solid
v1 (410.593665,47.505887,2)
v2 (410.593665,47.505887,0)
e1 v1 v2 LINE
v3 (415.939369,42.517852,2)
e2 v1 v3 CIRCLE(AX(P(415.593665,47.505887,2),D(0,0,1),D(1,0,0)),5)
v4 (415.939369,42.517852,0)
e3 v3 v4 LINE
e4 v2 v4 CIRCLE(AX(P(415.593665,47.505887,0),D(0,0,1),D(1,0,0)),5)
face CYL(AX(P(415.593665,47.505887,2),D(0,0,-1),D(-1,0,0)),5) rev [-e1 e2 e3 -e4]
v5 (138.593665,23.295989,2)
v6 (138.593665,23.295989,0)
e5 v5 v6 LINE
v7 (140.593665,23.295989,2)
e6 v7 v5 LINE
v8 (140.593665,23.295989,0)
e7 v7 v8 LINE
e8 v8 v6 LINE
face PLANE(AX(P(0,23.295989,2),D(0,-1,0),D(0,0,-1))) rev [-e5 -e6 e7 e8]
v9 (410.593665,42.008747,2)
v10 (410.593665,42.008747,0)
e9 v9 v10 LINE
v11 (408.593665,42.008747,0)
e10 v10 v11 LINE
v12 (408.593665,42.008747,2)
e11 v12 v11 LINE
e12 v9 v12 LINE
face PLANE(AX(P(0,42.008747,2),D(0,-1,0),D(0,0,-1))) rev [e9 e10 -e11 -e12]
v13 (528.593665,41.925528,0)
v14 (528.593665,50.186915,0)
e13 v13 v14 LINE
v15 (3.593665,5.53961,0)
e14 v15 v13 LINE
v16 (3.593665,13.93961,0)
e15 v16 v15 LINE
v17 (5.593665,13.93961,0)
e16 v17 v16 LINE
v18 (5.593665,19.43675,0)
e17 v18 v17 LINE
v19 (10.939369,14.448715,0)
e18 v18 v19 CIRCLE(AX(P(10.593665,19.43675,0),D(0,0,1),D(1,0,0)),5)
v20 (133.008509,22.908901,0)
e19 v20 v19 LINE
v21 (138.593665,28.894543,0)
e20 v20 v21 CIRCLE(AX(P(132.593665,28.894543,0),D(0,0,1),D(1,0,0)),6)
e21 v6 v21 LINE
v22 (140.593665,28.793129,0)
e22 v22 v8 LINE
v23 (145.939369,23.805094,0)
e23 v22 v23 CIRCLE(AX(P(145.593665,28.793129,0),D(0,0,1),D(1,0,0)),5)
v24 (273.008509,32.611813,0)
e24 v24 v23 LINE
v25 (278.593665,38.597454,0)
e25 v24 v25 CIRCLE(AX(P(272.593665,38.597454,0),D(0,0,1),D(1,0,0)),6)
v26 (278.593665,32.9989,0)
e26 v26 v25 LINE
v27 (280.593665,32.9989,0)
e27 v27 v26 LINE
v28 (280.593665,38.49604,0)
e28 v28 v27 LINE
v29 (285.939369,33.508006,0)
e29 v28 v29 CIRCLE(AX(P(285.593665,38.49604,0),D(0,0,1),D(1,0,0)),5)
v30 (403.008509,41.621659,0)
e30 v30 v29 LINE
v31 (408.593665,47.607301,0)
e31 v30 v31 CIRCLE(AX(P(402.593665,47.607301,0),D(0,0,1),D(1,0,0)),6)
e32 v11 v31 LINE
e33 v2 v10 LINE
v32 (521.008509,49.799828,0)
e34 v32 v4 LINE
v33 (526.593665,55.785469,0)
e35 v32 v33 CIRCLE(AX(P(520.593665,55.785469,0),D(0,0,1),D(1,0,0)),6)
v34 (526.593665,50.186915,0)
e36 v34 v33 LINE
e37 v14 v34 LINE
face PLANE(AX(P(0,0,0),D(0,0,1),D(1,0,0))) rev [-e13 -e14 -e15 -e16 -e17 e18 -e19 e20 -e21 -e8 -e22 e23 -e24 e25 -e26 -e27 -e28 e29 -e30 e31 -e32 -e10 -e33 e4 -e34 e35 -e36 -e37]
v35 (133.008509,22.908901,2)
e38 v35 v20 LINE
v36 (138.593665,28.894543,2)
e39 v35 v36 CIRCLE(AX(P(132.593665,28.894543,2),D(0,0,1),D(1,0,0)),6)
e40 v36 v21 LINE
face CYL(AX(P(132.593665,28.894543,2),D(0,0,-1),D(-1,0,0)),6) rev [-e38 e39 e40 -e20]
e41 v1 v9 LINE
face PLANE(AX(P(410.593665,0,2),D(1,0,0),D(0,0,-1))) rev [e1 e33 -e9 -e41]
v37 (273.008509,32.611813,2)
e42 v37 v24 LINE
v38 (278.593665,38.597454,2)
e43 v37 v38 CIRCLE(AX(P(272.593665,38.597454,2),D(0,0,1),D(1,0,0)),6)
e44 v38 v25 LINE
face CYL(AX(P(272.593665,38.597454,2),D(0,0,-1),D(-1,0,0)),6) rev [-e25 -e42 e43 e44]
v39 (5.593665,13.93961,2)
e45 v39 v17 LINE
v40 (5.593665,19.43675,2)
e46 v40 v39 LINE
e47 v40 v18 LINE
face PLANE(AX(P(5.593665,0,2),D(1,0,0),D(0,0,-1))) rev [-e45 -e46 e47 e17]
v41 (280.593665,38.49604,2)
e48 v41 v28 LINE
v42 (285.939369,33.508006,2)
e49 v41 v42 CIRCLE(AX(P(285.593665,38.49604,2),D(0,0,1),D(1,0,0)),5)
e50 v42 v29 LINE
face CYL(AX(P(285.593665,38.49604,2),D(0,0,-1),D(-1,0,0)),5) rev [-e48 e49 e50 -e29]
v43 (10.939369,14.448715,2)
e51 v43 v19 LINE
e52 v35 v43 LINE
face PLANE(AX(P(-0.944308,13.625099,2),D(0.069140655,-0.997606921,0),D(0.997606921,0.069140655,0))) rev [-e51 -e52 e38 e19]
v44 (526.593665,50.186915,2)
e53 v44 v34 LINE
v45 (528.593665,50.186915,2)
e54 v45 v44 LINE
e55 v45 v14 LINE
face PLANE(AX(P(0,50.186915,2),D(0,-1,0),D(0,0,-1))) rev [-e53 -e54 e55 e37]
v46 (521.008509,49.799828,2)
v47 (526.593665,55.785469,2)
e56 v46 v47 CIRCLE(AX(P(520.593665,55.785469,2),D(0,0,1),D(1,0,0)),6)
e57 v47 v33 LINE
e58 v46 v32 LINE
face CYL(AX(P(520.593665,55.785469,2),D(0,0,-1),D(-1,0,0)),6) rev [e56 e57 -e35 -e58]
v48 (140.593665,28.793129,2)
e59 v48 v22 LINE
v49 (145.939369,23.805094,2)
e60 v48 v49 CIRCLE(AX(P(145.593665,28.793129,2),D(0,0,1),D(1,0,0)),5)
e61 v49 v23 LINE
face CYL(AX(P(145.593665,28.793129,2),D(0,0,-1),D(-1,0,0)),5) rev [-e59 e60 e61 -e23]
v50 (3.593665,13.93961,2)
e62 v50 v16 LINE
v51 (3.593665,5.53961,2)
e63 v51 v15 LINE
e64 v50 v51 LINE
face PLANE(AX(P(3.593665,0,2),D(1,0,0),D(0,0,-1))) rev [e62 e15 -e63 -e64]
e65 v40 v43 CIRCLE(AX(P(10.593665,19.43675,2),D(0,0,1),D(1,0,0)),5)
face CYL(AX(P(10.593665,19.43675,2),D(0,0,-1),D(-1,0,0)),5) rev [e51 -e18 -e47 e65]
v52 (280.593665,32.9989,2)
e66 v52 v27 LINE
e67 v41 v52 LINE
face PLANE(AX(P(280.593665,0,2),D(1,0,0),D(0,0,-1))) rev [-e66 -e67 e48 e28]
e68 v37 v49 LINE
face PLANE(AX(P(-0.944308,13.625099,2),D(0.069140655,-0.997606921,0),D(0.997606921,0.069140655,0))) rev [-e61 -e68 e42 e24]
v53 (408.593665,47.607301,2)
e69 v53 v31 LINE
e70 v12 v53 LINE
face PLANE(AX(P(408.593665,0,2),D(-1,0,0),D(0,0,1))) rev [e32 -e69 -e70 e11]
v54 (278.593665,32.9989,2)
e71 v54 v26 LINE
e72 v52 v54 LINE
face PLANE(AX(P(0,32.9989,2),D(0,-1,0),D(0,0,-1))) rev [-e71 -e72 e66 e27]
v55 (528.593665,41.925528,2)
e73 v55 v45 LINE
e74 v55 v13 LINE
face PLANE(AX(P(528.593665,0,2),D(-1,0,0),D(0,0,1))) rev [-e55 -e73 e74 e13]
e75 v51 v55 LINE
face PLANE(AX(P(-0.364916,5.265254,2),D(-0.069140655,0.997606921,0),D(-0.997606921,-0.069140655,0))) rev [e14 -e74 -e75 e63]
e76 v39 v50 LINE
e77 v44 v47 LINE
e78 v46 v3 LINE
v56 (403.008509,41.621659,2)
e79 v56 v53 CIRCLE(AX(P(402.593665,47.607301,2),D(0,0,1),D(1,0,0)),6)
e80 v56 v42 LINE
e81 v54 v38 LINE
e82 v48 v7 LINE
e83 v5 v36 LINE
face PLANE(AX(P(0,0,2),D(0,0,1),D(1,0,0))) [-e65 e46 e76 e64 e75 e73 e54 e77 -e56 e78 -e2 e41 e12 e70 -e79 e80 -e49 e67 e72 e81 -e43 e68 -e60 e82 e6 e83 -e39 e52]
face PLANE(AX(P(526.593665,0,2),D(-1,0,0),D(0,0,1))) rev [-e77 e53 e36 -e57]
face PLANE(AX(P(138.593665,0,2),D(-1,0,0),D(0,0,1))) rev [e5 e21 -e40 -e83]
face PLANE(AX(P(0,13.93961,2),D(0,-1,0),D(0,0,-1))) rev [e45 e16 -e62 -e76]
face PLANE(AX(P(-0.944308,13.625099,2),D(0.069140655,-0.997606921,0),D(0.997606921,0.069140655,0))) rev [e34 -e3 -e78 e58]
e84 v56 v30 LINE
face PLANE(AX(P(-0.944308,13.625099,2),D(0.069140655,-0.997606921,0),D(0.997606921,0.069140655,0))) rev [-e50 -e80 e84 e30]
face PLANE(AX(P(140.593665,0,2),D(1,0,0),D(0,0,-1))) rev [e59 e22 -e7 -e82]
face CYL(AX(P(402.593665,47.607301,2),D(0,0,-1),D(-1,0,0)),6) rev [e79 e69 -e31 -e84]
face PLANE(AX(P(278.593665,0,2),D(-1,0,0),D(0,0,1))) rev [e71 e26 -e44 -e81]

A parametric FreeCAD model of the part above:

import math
import FreeCAD as App
import Part
import Sketcher
from FreeCAD import Vector
Q = App.Units.Quantity

doc = App.newDocument("Part")
body = doc.addObject("PartDesign::Body", "Body")

sketch1 = doc.addObject("Sketcher::SketchObject", "Sketch")
body.addObject(sketch1)
sketch1.AttachmentSupport = (doc.XY_Plane, [""])
sketch1.MapMode = "FlatFace"
sketch1.addGeometry(Part.LineSegment(Vector(5.593665, 13.93961, 0), Vector(3.593665, 13.93961, 0)), False)
sketch1.addGeometry(Part.LineSegment(Vector(3.593665, 13.93961, 0), Vector(3.593665, 5.53961, 0)), False)
sketch1.addGeometry(Part.LineSegment(Vector(3.593665, 5.53961, 0), Vector(528.593665, 41.925528, 0)), False)
sketch1.addGeometry(Part.LineSegment(Vector(528.593665, 41.925528, 0), Vector(528.593665, 50.186915, 0)), False)
sketch1.addGeometry(Part.LineSegment(Vector(528.593665, 50.186915, 0), Vector(526.593665, 50.186915, 0)), False)
sketch1.addGeometry(Part.LineSegment(Vector(526.593665, 50.186915, 0), Vector(526.593665, 55.785469, 0)), False)
sketch1.addGeometry(Part.ArcOfCircle(Part.Circle(Vector(520.593665, 55.785469, 0), Vector(0, 0, 1), 6), math.radians(-86.035369), math.radians(0)), False)
sketch1.addGeometry(Part.LineSegment(Vector(521.008509, 49.799828, 0), Vector(415.939369, 42.517852, 0)), False)
sketch1.addGeometry(Part.ArcOfCircle(Part.Circle(Vector(415.593665, 47.505887, 0), Vector(0, 0, 1), 5), math.radians(-180), math.radians(-86.035369)), False)
sketch1.addGeometry(Part.LineSegment(Vector(410.593665, 47.505887, 0), Vector(410.593665, 42.008747, 0)), False)
sketch1.addGeometry(Part.LineSegment(Vector(410.593665, 42.008747, 0), Vector(408.593665, 42.008747, 0)), False)
sketch1.addGeometry(Part.LineSegment(Vector(408.593665, 42.008747, 0), Vector(408.593665, 47.607301, 0)), False)
sketch1.addGeometry(Part.ArcOfCircle(Part.Circle(Vector(402.593665, 47.607301, 0), Vector(0, 0, 1), 6), math.radians(-86.035369), math.radians(0)), False)
sketch1.addGeometry(Part.LineSegment(Vector(403.008509, 41.621659, 0), Vector(285.939369, 33.508006, 0)), False)
sketch1.addGeometry(Part.ArcOfCircle(Part.Circle(Vector(285.593665, 38.49604, 0), Vector(0, 0, 1), 5), math.radians(-180), math.radians(-86.035369)), False)
sketch1.addGeometry(Part.LineSegment(Vector(280.593665, 38.49604, 0), Vector(280.593665, 32.9989, 0)), False)
sketch1.addGeometry(Part.LineSegment(Vector(280.593665, 32.9989, 0), Vector(278.593665, 32.9989, 0)), False)
sketch1.addGeometry(Part.LineSegment(Vector(278.593665, 32.9989, 0), Vector(278.593665, 38.597454, 0)), False)
sketch1.addGeometry(Part.ArcOfCircle(Part.Circle(Vector(272.593665, 38.597454, 0), Vector(0, 0, 1), 6), math.radians(-86.035369), math.radians(0)), False)
sketch1.addGeometry(Part.LineSegment(Vector(273.008509, 32.611813, 0), Vector(145.939369, 23.805094, 0)), False)
sketch1.addGeometry(Part.ArcOfCircle(Part.Circle(Vector(145.593665, 28.793129, 0), Vector(0, 0, 1), 5), math.radians(-180), math.radians(-86.035369)), False)
sketch1.addGeometry(Part.LineSegment(Vector(140.593665, 28.793129, 0), Vector(140.593665, 23.295989, 0)), False)
sketch1.addGeometry(Part.LineSegment(Vector(140.593665, 23.295989, 0), Vector(138.593665, 23.295989, 0)), False)
sketch1.addGeometry(Part.LineSegment(Vector(138.593665, 23.295989, 0), Vector(138.593665, 28.894543, 0)), False)
sketch1.addGeometry(Part.ArcOfCircle(Part.Circle(Vector(132.593665, 28.894543, 0), Vector(0, 0, 1), 6), math.radians(-86.035369), math.radians(0)), False)
sketch1.addGeometry(Part.LineSegment(Vector(133.008509, 22.908901, 0), Vector(10.939369, 14.448715, 0)), False)
sketch1.addGeometry(Part.ArcOfCircle(Part.Circle(Vector(10.593665, 19.43675, 0), Vector(0, 0, 1), 5), math.radians(180), math.radians(273.964631)), False)
sketch1.addGeometry(Part.LineSegment(Vector(5.593665, 19.43675, 0), Vector(5.593665, 13.93961, 0)), False)
sketch1.addConstraint(Sketcher.Constraint("Coincident", 0, 2, 1, 1))
sketch1.addConstraint(Sketcher.Constraint("Coincident", 1, 2, 2, 1))
sketch1.addConstraint(Sketcher.Constraint("Coincident", 2, 2, 3, 1))
sketch1.addConstraint(Sketcher.Constraint("Coincident", 3, 2, 4, 1))
sketch1.addConstraint(Sketcher.Constraint("Coincident", 4, 2, 5, 1))
sketch1.addConstraint(Sketcher.Constraint("Tangent", 5, 2, 6, 2))
sketch1.addConstraint(Sketcher.Constraint("Tangent", 6, 1, 7, 1))
sketch1.addConstraint(Sketcher.Constraint("Tangent", 7, 2, 8, 2))
sketch1.addConstraint(Sketcher.Constraint("Tangent", 8, 1, 9, 1))
sketch1.addConstraint(Sketcher.Constraint("Coincident", 9, 2, 10, 1))
sketch1.addConstraint(Sketcher.Constraint("Coincident", 10, 2, 11, 1))
sketch1.addConstraint(Sketcher.Constraint("Tangent", 11, 2, 12, 2))
sketch1.addConstraint(Sketcher.Constraint("Tangent", 12, 1, 13, 1))
sketch1.addConstraint(Sketcher.Constraint("Tangent", 13, 2, 14, 2))
sketch1.addConstraint(Sketcher.Constraint("Tangent", 14, 1, 15, 1))
sketch1.addConstraint(Sketcher.Constraint("Coincident", 15, 2, 16, 1))
sketch1.addConstraint(Sketcher.Constraint("Coincident", 16, 2, 17, 1))
sketch1.addConstraint(Sketcher.Constraint("Tangent", 17, 2, 18, 2))
sketch1.addConstraint(Sketcher.Constraint("Tangent", 18, 1, 19, 1))
sketch1.addConstraint(Sketcher.Constraint("Tangent", 19, 2, 20, 2))
sketch1.addConstraint(Sketcher.Constraint("Tangent", 20, 1, 21, 1))
sketch1.addConstraint(Sketcher.Constraint("Coincident", 21, 2, 22, 1))
sketch1.addConstraint(Sketcher.Constraint("Coincident", 22, 2, 23, 1))
sketch1.addConstraint(Sketcher.Constraint("Tangent", 23, 2, 24, 2))
sketch1.addConstraint(Sketcher.Constraint("Tangent", 24, 1, 25, 1))
sketch1.addConstraint(Sketcher.Constraint("Tangent", 25, 2, 26, 2))
sketch1.addConstraint(Sketcher.Constraint("Tangent", 26, 1, 27, 1))
sketch1.addConstraint(Sketcher.Constraint("Coincident", 27, 2, 0, 1))
sketch1.addConstraint(Sketcher.Constraint("Horizontal", 0))
sketch1.addConstraint(Sketcher.Constraint("Vertical", 1))
sketch1.addConstraint(Sketcher.Constraint("Vertical", 3))
sketch1.addConstraint(Sketcher.Constraint("Horizontal", 4))
sketch1.addConstraint(Sketcher.Constraint("Vertical", 5))
sketch1.addConstraint(Sketcher.Constraint("Vertical", 9))
sketch1.addConstraint(Sketcher.Constraint("Horizontal", 10))
sketch1.addConstraint(Sketcher.Constraint("Vertical", 11))
sketch1.addConstraint(Sketcher.Constraint("Vertical", 15))
sketch1.addConstraint(Sketcher.Constraint("Horizontal", 16))
sketch1.addConstraint(Sketcher.Constraint("Vertical", 17))
sketch1.addConstraint(Sketcher.Constraint("Vertical", 21))
sketch1.addConstraint(Sketcher.Constraint("Horizontal", 22))
sketch1.addConstraint(Sketcher.Constraint("Vertical", 23))
sketch1.addConstraint(Sketcher.Constraint("Vertical", 27))
sketch1.addConstraint(Sketcher.Constraint("Equal", 6, 12))
sketch1.addConstraint(Sketcher.Constraint("Equal", 8, 14))
sketch1.addConstraint(Sketcher.Constraint("Equal", 12, 18))
sketch1.addConstraint(Sketcher.Constraint("Equal", 14, 20))
sketch1.addConstraint(Sketcher.Constraint("Equal", 18, 24))
sketch1.addConstraint(Sketcher.Constraint("Equal", 20, 26))
sketch1.addConstraint(Sketcher.Constraint("Parallel", 2, 7))
sketch1.addConstraint(Sketcher.Constraint("Parallel", 7, 13))
sketch1.addConstraint(Sketcher.Constraint("Parallel", 13, 19))
sketch1.addConstraint(Sketcher.Constraint("Parallel", 19, 25))
sketch1.addConstraint(Sketcher.Constraint("Equal", 0, 4))
sketch1.addConstraint(Sketcher.Constraint("Equal", 4, 10))
sketch1.addConstraint(Sketcher.Constraint("Equal", 10, 16))
sketch1.addConstraint(Sketcher.Constraint("Equal", 16, 22))
sketch1.addConstraint(Sketcher.Constraint("Equal", 5, 11))
sketch1.addConstraint(Sketcher.Constraint("Equal", 9, 15))
sketch1.addConstraint(Sketcher.Constraint("Equal", 11, 17))
sketch1.addConstraint(Sketcher.Constraint("Equal", 15, 21))
sketch1.addConstraint(Sketcher.Constraint("Equal", 17, 23))
sketch1.addConstraint(Sketcher.Constraint("Equal", 21, 27))
sketch1.addConstraint(Sketcher.Constraint("Radius", 6, Q("6 mm")))
sketch1.addConstraint(Sketcher.Constraint("Radius", 8, Q("5 mm")))
sketch1.addConstraint(Sketcher.Constraint("DistanceX", 0, 2, 0, 1, Q("2 mm")))
sketch1.addConstraint(Sketcher.Constraint("DistanceY", 1, 2, 1, 1, Q("8.4 mm")))
sketch1.addConstraint(Sketcher.Constraint("DistanceX", 8, 3, 6, 3, Q("105 mm")))
sketch1.addConstraint(Sketcher.Constraint("DistanceX", 14, 3, 12, 3, Q("117 mm")))
sketch1.addConstraint(Sketcher.Constraint("DistanceX", 20, 3, 18, 3, Q("127 mm")))
sketch1.addConstraint(Sketcher.Constraint("DistanceX", 26, 3, 24, 3, Q("122 mm")))
sketch1.addConstraint(Sketcher.Constraint("DistanceY", 9, 2, 9, 1, Q("5.49714 mm")))
sketch1.addConstraint(Sketcher.Constraint("DistanceY", -1, 1, 12, 3, Q("47.607301 mm")))
sketch1.addConstraint(Sketcher.Constraint("DistanceY", -1, 1, 15, 2, Q("32.9989 mm")))
sketch1.addConstraint(Sketcher.Constraint("DistanceY", -1, 1, 24, 1, Q("22.908901 mm")))
sketch1.addConstraint(Sketcher.Constraint("DistanceX", -1, 1, 6, 1, Q("521.008509 mm")))
pad1 = doc.addObject("PartDesign::Pad", "Pad")
body.addObject(pad1)
pad1.Profile = sketch1
pad1.Length = 2

doc.recompute()
